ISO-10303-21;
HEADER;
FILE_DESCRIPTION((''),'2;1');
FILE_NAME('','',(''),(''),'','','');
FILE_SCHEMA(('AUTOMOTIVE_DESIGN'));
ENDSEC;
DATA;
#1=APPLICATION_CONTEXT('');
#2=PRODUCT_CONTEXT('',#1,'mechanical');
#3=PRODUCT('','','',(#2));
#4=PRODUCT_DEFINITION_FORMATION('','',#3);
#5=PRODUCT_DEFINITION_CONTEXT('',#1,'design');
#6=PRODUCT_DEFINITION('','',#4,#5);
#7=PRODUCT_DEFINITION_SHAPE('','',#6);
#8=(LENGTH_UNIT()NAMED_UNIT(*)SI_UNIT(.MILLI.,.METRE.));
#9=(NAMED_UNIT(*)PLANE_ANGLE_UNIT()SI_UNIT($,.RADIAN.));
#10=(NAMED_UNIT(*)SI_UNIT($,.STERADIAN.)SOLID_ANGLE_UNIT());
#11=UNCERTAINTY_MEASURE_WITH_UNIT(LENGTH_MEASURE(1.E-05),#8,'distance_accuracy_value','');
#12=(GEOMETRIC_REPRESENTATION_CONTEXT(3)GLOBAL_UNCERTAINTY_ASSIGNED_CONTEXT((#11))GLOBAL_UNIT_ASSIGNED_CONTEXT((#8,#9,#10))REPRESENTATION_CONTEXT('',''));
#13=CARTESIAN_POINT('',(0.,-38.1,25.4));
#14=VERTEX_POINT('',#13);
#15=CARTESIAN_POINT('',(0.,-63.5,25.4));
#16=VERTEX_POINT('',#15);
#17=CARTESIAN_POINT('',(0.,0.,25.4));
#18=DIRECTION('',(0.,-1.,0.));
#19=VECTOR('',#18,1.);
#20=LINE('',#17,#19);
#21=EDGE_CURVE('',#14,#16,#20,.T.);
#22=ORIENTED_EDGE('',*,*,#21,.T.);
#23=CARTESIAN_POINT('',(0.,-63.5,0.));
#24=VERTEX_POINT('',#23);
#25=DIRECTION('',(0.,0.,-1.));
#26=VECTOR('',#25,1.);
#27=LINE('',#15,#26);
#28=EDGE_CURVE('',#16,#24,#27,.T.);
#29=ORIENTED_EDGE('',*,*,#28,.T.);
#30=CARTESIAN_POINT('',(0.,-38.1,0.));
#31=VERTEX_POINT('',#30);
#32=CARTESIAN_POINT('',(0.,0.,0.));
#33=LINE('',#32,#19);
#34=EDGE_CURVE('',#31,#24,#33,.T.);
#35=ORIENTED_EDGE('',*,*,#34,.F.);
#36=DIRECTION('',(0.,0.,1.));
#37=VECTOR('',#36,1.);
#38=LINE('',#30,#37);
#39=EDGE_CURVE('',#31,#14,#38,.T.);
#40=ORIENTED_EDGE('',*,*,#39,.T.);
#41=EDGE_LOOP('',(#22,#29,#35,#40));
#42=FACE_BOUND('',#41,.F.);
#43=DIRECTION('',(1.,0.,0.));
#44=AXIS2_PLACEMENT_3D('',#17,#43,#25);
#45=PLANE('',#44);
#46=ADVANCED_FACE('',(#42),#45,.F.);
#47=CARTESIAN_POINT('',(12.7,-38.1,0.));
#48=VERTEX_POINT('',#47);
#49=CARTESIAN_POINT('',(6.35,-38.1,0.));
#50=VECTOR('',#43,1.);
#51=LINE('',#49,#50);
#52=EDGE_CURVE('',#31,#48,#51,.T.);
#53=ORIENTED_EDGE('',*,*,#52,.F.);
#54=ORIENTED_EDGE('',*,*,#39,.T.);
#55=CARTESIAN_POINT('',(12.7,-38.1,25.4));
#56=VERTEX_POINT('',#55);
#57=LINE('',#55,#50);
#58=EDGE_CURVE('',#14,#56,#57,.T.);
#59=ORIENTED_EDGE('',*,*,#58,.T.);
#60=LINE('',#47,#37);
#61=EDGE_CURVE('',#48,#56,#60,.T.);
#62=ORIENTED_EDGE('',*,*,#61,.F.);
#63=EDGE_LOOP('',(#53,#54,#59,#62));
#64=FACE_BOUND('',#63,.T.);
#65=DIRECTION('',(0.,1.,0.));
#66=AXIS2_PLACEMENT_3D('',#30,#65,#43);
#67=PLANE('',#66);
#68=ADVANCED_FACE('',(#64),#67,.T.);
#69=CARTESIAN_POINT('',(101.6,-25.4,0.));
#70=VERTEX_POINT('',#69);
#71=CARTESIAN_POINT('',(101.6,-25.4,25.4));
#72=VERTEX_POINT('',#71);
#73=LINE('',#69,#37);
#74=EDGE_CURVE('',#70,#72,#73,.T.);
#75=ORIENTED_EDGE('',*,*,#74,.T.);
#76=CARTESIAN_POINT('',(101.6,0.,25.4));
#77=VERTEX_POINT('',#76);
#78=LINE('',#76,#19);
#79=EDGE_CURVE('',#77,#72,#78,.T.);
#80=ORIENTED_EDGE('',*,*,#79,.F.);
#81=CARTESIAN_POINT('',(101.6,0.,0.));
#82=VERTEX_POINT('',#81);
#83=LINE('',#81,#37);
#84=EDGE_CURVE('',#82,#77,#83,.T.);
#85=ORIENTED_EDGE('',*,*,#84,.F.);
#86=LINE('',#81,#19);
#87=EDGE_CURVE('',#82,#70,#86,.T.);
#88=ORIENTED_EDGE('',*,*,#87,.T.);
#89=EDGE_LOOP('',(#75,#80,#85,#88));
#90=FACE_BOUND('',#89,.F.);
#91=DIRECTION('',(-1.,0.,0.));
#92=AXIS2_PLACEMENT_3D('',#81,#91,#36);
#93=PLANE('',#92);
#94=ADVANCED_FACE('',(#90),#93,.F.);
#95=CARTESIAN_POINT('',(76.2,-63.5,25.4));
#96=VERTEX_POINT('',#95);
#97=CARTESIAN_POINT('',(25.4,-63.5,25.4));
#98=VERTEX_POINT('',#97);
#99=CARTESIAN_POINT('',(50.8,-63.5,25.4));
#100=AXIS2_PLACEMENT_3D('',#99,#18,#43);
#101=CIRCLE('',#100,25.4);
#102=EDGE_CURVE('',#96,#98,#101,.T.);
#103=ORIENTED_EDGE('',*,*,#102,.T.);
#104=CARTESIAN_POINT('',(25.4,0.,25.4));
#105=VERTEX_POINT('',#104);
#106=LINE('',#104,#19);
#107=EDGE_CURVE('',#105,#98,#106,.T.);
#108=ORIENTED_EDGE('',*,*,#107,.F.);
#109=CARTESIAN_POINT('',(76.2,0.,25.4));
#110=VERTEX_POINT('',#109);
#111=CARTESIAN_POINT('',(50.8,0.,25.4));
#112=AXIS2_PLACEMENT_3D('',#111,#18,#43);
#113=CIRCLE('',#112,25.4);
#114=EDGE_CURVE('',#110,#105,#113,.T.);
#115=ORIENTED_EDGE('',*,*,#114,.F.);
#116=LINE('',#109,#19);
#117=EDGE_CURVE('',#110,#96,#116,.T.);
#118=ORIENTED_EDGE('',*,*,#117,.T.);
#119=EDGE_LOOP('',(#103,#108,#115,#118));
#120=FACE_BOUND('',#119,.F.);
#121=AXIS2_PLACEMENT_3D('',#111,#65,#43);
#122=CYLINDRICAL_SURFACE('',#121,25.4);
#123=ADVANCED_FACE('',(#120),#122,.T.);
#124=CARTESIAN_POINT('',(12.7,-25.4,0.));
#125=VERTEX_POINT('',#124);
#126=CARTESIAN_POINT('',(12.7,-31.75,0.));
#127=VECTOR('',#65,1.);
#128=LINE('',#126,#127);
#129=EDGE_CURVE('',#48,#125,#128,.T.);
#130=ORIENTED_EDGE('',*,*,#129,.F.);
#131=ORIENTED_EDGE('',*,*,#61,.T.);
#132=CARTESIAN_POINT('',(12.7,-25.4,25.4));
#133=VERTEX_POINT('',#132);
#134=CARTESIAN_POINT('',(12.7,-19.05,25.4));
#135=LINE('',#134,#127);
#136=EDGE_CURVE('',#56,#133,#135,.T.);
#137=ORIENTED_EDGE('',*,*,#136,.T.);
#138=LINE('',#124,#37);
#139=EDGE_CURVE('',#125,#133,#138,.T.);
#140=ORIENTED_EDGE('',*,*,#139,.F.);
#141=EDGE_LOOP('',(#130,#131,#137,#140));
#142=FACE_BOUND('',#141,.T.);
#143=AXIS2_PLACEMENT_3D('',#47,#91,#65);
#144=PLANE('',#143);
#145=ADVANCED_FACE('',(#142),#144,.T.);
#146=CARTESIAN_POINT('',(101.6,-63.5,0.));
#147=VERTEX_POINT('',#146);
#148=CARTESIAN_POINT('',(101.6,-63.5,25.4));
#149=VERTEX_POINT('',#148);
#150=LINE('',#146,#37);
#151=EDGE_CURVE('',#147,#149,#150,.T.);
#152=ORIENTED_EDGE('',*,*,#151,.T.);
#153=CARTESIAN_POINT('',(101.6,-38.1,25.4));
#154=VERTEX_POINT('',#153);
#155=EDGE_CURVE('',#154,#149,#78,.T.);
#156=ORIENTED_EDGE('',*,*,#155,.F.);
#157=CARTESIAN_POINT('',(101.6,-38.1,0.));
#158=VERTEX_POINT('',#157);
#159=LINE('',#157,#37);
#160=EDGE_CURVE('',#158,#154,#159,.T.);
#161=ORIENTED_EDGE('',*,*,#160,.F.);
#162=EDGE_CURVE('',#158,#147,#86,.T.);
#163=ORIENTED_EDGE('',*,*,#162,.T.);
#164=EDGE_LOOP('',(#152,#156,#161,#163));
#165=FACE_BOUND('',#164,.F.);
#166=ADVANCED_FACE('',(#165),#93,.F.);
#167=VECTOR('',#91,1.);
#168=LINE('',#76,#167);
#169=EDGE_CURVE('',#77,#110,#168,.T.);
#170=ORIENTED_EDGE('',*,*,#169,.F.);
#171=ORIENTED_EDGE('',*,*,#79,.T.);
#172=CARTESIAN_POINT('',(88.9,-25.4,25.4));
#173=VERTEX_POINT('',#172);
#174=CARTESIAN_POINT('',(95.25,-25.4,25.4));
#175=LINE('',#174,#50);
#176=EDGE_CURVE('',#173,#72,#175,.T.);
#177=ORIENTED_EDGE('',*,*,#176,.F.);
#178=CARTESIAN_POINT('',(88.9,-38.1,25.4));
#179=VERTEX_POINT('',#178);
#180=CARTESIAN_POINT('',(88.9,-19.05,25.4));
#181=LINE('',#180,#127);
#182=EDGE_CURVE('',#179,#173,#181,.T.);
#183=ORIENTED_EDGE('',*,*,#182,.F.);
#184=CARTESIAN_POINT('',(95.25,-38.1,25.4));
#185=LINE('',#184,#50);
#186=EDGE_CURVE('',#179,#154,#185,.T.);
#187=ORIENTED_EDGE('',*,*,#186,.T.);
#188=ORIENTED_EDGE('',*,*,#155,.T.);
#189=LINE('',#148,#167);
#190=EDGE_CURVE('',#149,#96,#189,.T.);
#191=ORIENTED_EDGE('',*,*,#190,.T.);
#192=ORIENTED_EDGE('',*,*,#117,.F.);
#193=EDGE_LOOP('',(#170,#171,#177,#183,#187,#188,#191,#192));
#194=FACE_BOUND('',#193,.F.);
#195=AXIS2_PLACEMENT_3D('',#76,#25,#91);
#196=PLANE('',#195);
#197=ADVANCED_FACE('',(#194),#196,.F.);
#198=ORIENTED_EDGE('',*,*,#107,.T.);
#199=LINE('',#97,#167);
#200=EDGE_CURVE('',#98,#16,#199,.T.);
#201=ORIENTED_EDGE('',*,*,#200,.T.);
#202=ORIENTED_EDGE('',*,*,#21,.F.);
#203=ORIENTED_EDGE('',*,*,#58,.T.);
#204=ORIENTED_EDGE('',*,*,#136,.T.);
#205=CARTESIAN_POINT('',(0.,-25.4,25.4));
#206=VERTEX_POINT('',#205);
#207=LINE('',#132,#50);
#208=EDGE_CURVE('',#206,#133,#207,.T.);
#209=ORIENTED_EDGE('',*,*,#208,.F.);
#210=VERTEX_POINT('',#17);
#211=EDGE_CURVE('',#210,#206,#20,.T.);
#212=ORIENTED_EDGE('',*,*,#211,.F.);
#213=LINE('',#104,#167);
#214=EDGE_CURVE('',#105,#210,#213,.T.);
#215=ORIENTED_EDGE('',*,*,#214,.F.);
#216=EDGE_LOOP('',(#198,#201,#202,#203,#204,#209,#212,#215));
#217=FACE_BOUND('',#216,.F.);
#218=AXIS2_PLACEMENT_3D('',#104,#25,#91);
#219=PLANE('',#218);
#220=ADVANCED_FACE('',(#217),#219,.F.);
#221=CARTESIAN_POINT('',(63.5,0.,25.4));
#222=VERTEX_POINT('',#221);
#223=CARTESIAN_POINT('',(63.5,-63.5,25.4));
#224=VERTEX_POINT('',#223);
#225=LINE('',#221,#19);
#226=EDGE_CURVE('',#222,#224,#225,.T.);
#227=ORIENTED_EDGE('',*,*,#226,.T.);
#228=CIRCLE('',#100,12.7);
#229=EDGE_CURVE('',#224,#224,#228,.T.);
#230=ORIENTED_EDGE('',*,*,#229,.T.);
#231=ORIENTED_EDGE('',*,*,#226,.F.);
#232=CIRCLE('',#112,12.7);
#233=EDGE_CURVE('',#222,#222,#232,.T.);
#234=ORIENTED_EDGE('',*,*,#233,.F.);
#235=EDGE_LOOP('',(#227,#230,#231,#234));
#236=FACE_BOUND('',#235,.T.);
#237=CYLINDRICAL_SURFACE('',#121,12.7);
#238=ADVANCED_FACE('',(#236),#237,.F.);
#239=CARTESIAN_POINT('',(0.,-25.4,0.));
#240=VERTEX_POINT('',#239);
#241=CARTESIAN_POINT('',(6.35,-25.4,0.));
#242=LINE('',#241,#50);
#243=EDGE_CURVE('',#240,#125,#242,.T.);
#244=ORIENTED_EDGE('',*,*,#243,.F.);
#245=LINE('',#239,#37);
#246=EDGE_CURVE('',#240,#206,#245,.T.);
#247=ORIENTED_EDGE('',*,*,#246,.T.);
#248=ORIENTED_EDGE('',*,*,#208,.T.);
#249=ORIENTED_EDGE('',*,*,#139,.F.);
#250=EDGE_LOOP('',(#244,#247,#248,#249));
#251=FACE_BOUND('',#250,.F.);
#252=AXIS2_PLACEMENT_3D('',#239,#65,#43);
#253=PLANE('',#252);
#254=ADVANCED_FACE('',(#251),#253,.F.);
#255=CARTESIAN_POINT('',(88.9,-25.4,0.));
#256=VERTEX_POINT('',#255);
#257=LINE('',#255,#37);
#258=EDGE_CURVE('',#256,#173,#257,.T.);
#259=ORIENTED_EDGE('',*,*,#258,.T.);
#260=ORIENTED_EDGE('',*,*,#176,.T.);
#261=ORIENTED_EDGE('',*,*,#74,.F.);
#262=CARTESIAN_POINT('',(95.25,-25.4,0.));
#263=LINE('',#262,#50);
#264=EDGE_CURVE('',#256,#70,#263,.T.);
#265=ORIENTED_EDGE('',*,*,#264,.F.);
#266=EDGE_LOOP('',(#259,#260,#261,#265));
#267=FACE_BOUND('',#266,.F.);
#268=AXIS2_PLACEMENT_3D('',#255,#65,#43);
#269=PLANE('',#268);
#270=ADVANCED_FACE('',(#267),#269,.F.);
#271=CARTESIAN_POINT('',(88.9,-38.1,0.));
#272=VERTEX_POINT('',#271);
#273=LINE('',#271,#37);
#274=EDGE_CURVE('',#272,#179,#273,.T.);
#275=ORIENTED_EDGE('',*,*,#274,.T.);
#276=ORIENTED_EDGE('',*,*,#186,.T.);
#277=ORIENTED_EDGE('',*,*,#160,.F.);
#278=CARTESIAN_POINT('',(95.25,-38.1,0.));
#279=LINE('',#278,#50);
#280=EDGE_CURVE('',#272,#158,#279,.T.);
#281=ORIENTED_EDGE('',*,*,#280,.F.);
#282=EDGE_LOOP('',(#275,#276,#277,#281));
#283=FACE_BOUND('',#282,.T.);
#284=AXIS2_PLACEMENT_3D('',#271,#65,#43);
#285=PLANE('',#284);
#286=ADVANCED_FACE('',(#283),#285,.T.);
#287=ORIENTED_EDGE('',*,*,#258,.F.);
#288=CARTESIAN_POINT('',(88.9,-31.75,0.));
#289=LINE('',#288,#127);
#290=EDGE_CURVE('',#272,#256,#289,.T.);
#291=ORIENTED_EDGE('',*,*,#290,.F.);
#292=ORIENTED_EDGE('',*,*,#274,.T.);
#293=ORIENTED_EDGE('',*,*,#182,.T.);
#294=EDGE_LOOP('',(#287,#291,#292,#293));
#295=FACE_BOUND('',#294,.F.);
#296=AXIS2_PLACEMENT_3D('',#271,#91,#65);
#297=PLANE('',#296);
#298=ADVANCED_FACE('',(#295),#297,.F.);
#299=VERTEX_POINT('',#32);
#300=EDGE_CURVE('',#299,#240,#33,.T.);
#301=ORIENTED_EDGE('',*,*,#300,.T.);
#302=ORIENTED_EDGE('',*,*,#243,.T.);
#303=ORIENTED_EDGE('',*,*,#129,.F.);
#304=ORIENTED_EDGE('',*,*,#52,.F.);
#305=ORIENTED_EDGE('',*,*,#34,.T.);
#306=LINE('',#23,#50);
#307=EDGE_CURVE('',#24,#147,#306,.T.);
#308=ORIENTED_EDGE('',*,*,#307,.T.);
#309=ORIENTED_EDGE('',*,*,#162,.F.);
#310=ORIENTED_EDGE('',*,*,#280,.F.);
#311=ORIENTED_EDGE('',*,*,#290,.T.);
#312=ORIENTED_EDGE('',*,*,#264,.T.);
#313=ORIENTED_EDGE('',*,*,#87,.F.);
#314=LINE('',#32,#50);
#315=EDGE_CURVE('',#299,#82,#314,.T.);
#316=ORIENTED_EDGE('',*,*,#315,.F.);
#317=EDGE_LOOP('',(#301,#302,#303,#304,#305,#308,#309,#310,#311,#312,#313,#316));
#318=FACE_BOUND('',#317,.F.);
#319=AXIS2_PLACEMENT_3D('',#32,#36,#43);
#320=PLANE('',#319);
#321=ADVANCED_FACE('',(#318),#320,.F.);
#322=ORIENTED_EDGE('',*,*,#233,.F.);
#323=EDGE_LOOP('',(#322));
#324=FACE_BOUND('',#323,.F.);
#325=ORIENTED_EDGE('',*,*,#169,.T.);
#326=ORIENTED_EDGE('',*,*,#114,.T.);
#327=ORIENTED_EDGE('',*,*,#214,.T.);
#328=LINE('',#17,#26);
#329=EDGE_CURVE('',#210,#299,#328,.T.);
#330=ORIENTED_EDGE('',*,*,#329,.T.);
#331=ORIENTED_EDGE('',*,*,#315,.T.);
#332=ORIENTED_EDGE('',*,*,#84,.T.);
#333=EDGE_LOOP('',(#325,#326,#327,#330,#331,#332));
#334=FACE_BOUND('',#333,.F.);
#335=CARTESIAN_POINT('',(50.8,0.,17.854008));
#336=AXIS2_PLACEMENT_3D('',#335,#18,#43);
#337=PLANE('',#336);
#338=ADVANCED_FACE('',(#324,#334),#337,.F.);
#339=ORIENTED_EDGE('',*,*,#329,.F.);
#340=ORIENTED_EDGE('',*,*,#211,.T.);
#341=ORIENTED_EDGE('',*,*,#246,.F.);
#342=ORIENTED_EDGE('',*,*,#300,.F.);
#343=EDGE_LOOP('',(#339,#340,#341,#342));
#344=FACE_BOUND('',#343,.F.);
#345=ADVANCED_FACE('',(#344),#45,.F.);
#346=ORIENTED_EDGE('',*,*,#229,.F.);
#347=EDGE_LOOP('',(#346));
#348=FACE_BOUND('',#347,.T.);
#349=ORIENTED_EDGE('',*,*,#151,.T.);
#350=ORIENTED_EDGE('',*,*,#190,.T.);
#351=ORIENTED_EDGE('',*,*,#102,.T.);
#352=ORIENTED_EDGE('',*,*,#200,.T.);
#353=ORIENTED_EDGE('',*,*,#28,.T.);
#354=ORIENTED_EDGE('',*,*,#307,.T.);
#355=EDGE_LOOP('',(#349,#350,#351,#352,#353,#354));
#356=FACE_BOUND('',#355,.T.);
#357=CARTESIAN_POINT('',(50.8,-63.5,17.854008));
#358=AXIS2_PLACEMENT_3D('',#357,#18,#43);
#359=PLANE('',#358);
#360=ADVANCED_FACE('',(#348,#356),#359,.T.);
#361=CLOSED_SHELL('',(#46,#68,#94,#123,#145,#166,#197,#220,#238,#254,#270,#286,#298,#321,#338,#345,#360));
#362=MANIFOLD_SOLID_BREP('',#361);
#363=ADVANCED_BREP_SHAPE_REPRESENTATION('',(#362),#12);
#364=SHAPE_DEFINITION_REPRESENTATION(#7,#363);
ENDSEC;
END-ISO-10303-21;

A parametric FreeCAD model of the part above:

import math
import FreeCAD as App
import Part
import Sketcher
Q = App.Units.Quantity

doc = App.newDocument("Part")
params = doc.addObject("Spreadsheet::Sheet", "Params")
for row, (alias, value) in enumerate([
    ("sketch1_diameter", "1 in"),
    ("sketch1_radius", "1 in"),
    ("sketch1_width", "4 in"),
    ("pad1_length", "2.5 in"),
    ("sketch2_width", "0.5 in"),
], start=1):
    params.set(f"A{row}", alias)
    params.set(f"B{row}", "=" + value)
    params.setAlias(f"B{row}", alias)

body = doc.addObject("PartDesign::Body", "Body")

# Sketch on XZ plane
sketch1 = body.newObject("Sketcher::SketchObject", "Sketch")
sketch1.AttachmentSupport = (doc.getObject("XZ_Plane"), [""])
sketch1.MapMode = "FlatFace"
sketch1.addGeometry(Part.LineSegment(App.Vector(0, 25.4, 0), App.Vector(0, 0, 0)), False)
sketch1.addGeometry(Part.LineSegment(App.Vector(0, 0, 0), App.Vector(101.6, 0, 0)), False)
sketch1.addGeometry(Part.LineSegment(App.Vector(101.6, 0, 0), App.Vector(101.6, 25.4, 0)), False)
sketch1.addGeometry(Part.LineSegment(App.Vector(101.6, 25.4, 0), App.Vector(76.2, 25.4, 0)), False)
sketch1.addGeometry(Part.ArcOfCircle(Part.Circle(App.Vector(50.8, 25.4, 0), App.Vector(0, 0, 1), 25.4), math.radians(0), math.radians(180)), False)
sketch1.addGeometry(Part.LineSegment(App.Vector(25.4, 25.4, 0), App.Vector(0, 25.4, 0)), False)
sketch1.addGeometry(Part.Circle(App.Vector(50.8, 25.4, 0), App.Vector(0, 0, 1), 12.7), False)
sketch1.addConstraint(Sketcher.Constraint("Coincident", 0, 2, 1, 1))
sketch1.addConstraint(Sketcher.Constraint("Coincident", 1, 2, 2, 1))
sketch1.addConstraint(Sketcher.Constraint("Coincident", 2, 2, 3, 1))
sketch1.addConstraint(Sketcher.Constraint("Coincident", 3, 2, 4, 1))
sketch1.addConstraint(Sketcher.Constraint("Coincident", 4, 2, 5, 1))
sketch1.addConstraint(Sketcher.Constraint("Coincident", 5, 2, 0, 1))
sketch1.addConstraint(Sketcher.Constraint("Vertical", 0))
sketch1.addConstraint(Sketcher.Constraint("Horizontal", 1))
sketch1.addConstraint(Sketcher.Constraint("Vertical", 2))
sketch1.addConstraint(Sketcher.Constraint("Horizontal", 3))
sketch1.addConstraint(Sketcher.Constraint("Horizontal", 5))
sketch1.addConstraint(Sketcher.Constraint("Coincident", 0, 2, -1, 1))
sketch1.addConstraint(Sketcher.Constraint("Coincident", 6, 3, 4, 3))
sketch1.addConstraint(Sketcher.Constraint("Horizontal", 6, 3, 2, 2))
sketch1.addConstraint(Sketcher.Constraint("Horizontal", 3, 2, 4, 2))
sketch1.addConstraint(Sketcher.Constraint("Equal", 3, 5))
sketch1.addConstraint(Sketcher.Constraint("Equal", 5, 0))
sketch1.addConstraint(Sketcher.Constraint("Diameter", 6, Q("1 in")))
sketch1.addConstraint(Sketcher.Constraint("Radius", 4, Q("1 in")))
sketch1.addConstraint(Sketcher.Constraint("DistanceX", 1, 1, 1, 2, Q("4 in")))
sketch1.setExpression("Constraints[17]", "Params.sketch1_diameter")
sketch1.setExpression("Constraints[18]", "Params.sketch1_radius")
sketch1.setExpression("Constraints[19]", "Params.sketch1_width")
pad1 = body.newObject("PartDesign::Pad", "Pad")
pad1.Profile = sketch1
pad1.setExpression("Length", "Params.pad1_length")

# Sketch on XY plane
sketch2 = body.newObject("Sketcher::SketchObject", "Sketch001")
sketch2.AttachmentSupport = (doc.getObject("XY_Plane"), [""])
sketch2.MapMode = "FlatFace"
sketch2.addGeometry(Part.LineSegment(App.Vector(0, -25.4, 0), App.Vector(0, -38.1, 0)), False)
sketch2.addGeometry(Part.LineSegment(App.Vector(0, -38.1, 0), App.Vector(12.7, -38.1, 0)), False)
sketch2.addGeometry(Part.LineSegment(App.Vector(12.7, -38.1, 0), App.Vector(12.7, -25.4, 0)), False)
sketch2.addGeometry(Part.LineSegment(App.Vector(12.7, -25.4, 0), App.Vector(0, -25.4, 0)), False)
sketch2.addGeometry(Part.LineSegment(App.Vector(88.9, -25.4, 0), App.Vector(88.9, -38.1, 0)), False)
sketch2.addGeometry(Part.LineSegment(App.Vector(88.9, -38.1, 0), App.Vector(101.6, -38.1, 0)), False)
sketch2.addGeometry(Part.LineSegment(App.Vector(101.6, -38.1, 0), App.Vector(101.6, -25.4, 0)), False)
sketch2.addGeometry(Part.LineSegment(App.Vector(101.6, -25.4, 0), App.Vector(88.9, -25.4, 0)), False)
sketch2.addConstraint(Sketcher.Constraint("Coincident", 0, 2, 1, 1))
sketch2.addConstraint(Sketcher.Constraint("Coincident", 1, 2, 2, 1))
sketch2.addConstraint(Sketcher.Constraint("Coincident", 2, 2, 3, 1))
sketch2.addConstraint(Sketcher.Constraint("Coincident", 3, 2, 0, 1))
sketch2.addConstraint(Sketcher.Constraint("Coincident", 4, 2, 5, 1))
sketch2.addConstraint(Sketcher.Constraint("Coincident", 5, 2, 6, 1))
sketch2.addConstraint(Sketcher.Constraint("Coincident", 6, 2, 7, 1))
sketch2.addConstraint(Sketcher.Constraint("Coincident", 7, 2, 4, 1))
sketch2.addConstraint(Sketcher.Constraint("Vertical", 0))
sketch2.addConstraint(Sketcher.Constraint("Horizontal", 1))
sketch2.addConstraint(Sketcher.Constraint("Vertical", 2))
sketch2.addConstraint(Sketcher.Constraint("Horizontal", 3))
sketch2.addConstraint(Sketcher.Constraint("Vertical", 4))
sketch2.addConstraint(Sketcher.Constraint("Horizontal", 5))
sketch2.addConstraint(Sketcher.Constraint("Vertical", 6))
sketch2.addConstraint(Sketcher.Constraint("Horizontal", 7))
sketch2.addConstraint(Sketcher.Constraint("PointOnObject", 0, 2, -2))
sketch2.addConstraint(Sketcher.Constraint("Horizontal", 1, 2, 4, 2))
sketch2.addConstraint(Sketcher.Constraint("Horizontal", 3, 2, 6, 2))
sketch2.addConstraint(Sketcher.Constraint("Equal", 3, 5))
sketch2.addConstraint(Sketcher.Constraint("Equal", 7, 0))
sketch2.addConstraint(Sketcher.Constraint("DistanceX", 1, 1, 1, 2, Q("0.5 in")))
sketch2.addConstraint(Sketcher.Constraint("DistanceY", 2, 2, -1, 1, Q("1 in")))
sketch2.addConstraint(Sketcher.Constraint("DistanceX", -1, 1, 5, 2, Q("4 in")))
sketch2.setExpression("Constraints[21]", "Params.sketch2_width")
pocket1 = body.newObject("PartDesign::Pocket", "Pocket")
pocket1.Profile = sketch2
pocket1.Type = "ThroughAll"
pocket1.Reversed = True

doc.recompute()
